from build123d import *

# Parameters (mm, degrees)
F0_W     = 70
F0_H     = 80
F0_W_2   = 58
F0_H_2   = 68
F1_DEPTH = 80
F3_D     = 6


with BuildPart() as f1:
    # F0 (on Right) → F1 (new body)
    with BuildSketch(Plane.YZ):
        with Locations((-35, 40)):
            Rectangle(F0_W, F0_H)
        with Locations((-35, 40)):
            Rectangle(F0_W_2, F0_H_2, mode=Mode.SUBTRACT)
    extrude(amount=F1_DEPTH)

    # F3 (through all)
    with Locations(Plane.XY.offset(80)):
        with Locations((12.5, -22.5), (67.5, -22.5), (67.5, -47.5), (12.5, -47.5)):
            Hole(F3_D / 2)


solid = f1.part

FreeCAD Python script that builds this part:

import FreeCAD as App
import Part
import Sketcher

doc = App.newDocument("Part")
params = doc.addObject("Spreadsheet::Sheet", "Params")
for row, (alias, value) in enumerate([
    ("sketch1_width", "70 mm"),
    ("sketch1_width2", "58 mm"),
    ("sketch1_height", "80 mm"),
    ("sketch1_height2", "68 mm"),
    ("pad1_length", "80 mm"),
    ("sketch2_diameter", "6 mm"),
    ("hole_diameter", "6 mm"),
], start=1):
    params.set(f"A{row}", alias)
    params.set(f"B{row}", "=" + value)
    params.setAlias(f"B{row}", alias)

body = doc.addObject("PartDesign::Body", "Body")

sketch1 = doc.addObject("Sketcher::SketchObject", "Sketch")
body.addObject(sketch1)
sketch1.AttachmentSupport = (doc.YZ_Plane, [""])
sketch1.MapMode = "FlatFace"
sketch1.addGeometry([
    Part.LineSegment(App.Vector(-70, 80, 0), App.Vector(-70, 0, 0)),
    Part.LineSegment(App.Vector(-70, 0, 0), App.Vector(0, 0, 0)),
    Part.LineSegment(App.Vector(0, 0, 0), App.Vector(0, 80, 0)),
    Part.LineSegment(App.Vector(0, 80, 0), App.Vector(-70, 80, 0)),
    Part.LineSegment(App.Vector(-6, 6, 0), App.Vector(-64, 6, 0)),
    Part.LineSegment(App.Vector(-64, 6, 0), App.Vector(-64, 74, 0)),
    Part.LineSegment(App.Vector(-64, 74, 0), App.Vector(-6, 74, 0)),
    Part.LineSegment(App.Vector(-6, 74, 0), App.Vector(-6, 6, 0)),
], False)
sketch1.addConstraint([
    Sketcher.Constraint("Coincident", 0, 2, 1, 1),
    Sketcher.Constraint("Coincident", 1, 2, 2, 1),
    Sketcher.Constraint("Coincident", 2, 2, 3, 1),
    Sketcher.Constraint("Coincident", 3, 2, 0, 1),
    Sketcher.Constraint("Coincident", 4, 2, 5, 1),
    Sketcher.Constraint("Coincident", 5, 2, 6, 1),
    Sketcher.Constraint("Coincident", 6, 2, 7, 1),
    Sketcher.Constraint("Coincident", 7, 2, 4, 1),
    Sketcher.Constraint("Vertical", 0),
    Sketcher.Constraint("Horizontal", 1),
    Sketcher.Constraint("Vertical", 2),
    Sketcher.Constraint("Horizontal", 3),
    Sketcher.Constraint("Horizontal", 4),
    Sketcher.Constraint("Vertical", 5),
    Sketcher.Constraint("Horizontal", 6),
    Sketcher.Constraint("Vertical", 7),
    Sketcher.Constraint("Coincident", 1, 2, -1, 1),
    Sketcher.Constraint("DistanceX", 1, 1, 1, 2, 70.0),
    Sketcher.Constraint("DistanceX", 4, 2, 4, 1, 58.0),
    Sketcher.Constraint("DistanceY", 0, 2, 0, 1, 80.0),
    Sketcher.Constraint("DistanceY", 5, 1, 5, 2, 68.0),
    Sketcher.Constraint("DistanceX", 4, 2, -1, 1, 64.0),
    Sketcher.Constraint("DistanceY", -1, 1, 4, 2, 6.0),
])
sketch1.setExpression("Constraints[17]", "Params.sketch1_width")
sketch1.setExpression("Constraints[18]", "Params.sketch1_width2")
sketch1.setExpression("Constraints[19]", "Params.sketch1_height")
sketch1.setExpression("Constraints[20]", "Params.sketch1_height2")
pad1 = doc.addObject("PartDesign::Pad", "Pad")
body.addObject(pad1)
pad1.Profile = sketch1
pad1.setExpression("Length", "Params.pad1_length")

sketch2 = doc.addObject("Sketcher::SketchObject", "Sketch001")
body.addObject(sketch2)
sketch2.AttachmentSupport = (doc.XY_Plane, [""])
sketch2.MapMode = "FlatFace"
sketch2.AttachmentOffset = App.Placement(App.Vector(0, 0, 80), App.Rotation())
sketch2.addGeometry([
    Part.Circle(App.Vector(12.5, -22.5, 0), App.Vector(0, 0, 1), 3),
    Part.Circle(App.Vector(67.5, -22.5, 0), App.Vector(0, 0, 1), 3),
    Part.Circle(App.Vector(67.5, -47.5, 0), App.Vector(0, 0, 1), 3),
    Part.Circle(App.Vector(12.5, -47.5, 0), App.Vector(0, 0, 1), 3),
], False)
sketch2.addConstraint([
    Sketcher.Constraint("Equal", 0, 1),
    Sketcher.Constraint("Equal", 1, 2),
    Sketcher.Constraint("Equal", 2, 3),
    Sketcher.Constraint("Horizontal", 0, 3, 1, 3),
    Sketcher.Constraint("Horizontal", 2, 3, 3, 3),
    Sketcher.Constraint("Vertical", 1, 3, 2, 3),
    Sketcher.Constraint("Vertical", 0, 3, 3, 3),
    Sketcher.Constraint("Diameter", 0, 6.0),
    Sketcher.Constraint("DistanceX", 0, 3, 1, 3, 55.0),
    Sketcher.Constraint("DistanceY", 2, 3, 1, 3, 25.0),
    Sketcher.Constraint("DistanceX", -1, 1, 0, 3, 12.5),
    Sketcher.Constraint("DistanceY", 0, 3, -1, 1, 22.5),
])
sketch2.setExpression("Constraints[7]", "Params.sketch2_diameter")
doc.recompute()
hole = doc.addObject("PartDesign::Hole", "Hole")
body.addObject(hole)
hole.Profile = sketch2
hole.ThreadType = "None"
hole.setExpression("Diameter", "Params.hole_diameter")
hole.DepthType = "ThroughAll"

doc.recompute()
